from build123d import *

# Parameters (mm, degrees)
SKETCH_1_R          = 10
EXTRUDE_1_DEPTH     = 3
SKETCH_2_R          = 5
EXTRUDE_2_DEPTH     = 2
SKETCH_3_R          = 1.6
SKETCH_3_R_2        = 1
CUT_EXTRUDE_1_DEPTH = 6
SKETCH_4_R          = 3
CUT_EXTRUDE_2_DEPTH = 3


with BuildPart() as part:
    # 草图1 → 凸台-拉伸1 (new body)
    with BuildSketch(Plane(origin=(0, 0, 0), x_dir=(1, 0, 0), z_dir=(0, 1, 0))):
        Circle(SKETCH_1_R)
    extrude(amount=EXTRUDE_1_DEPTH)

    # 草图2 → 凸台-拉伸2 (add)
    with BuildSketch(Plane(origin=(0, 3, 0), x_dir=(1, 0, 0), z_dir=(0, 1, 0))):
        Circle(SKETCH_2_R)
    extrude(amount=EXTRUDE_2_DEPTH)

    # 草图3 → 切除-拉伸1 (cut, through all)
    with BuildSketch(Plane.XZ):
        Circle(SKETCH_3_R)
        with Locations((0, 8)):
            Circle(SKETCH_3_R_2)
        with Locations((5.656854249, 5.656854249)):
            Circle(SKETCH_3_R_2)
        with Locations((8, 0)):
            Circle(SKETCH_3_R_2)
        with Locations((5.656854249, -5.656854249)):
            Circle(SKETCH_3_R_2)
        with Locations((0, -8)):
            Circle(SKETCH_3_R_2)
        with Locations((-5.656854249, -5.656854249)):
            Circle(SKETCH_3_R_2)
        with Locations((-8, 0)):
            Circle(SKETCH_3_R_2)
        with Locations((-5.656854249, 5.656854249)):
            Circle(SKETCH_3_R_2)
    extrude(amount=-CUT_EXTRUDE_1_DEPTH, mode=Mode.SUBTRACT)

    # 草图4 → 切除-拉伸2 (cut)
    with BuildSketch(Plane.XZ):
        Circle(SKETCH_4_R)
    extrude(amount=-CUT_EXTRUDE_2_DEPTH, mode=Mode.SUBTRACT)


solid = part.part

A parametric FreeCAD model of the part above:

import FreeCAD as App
import Part
import Sketcher

V = App.Vector

doc = App.newDocument("Part")
body = doc.addObject("PartDesign::Body", "Body")

sketch1 = doc.addObject("Sketcher::SketchObject", "Sketch")
body.addObject(sketch1)
sketch1.AttachmentSupport = (doc.XZ_Plane, [""])
sketch1.MapMode = "FlatFace"
sketch1.addGeometry(Part.Circle(V(0, 0, 0), V(0, 0, 1), 10), False)
sketch1.addConstraint([
    Sketcher.Constraint("Coincident", 0, 3, -1, 1),
    Sketcher.Constraint("Diameter", 0, 20.0),
])
pad1 = doc.addObject("PartDesign::Pad", "Pad")
body.addObject(pad1)
pad1.Profile = sketch1
pad1.Length = 3
pad1.Reversed = True

sketch2 = doc.addObject("Sketcher::SketchObject", "Sketch001")
body.addObject(sketch2)
sketch2.AttachmentSupport = (doc.XZ_Plane, [""])
sketch2.MapMode = "FlatFace"
sketch2.AttachmentOffset = App.Placement(V(0, 0, -3), App.Rotation())
sketch2.addGeometry(Part.Circle(V(0, 0, 0), V(0, 0, 1), 5), False)
sketch2.addConstraint([
    Sketcher.Constraint("Coincident", 0, 3, -1, 1),
    Sketcher.Constraint("Diameter", 0, 10.0),
])
pad2 = doc.addObject("PartDesign::Pad", "Pad001")
body.addObject(pad2)
pad2.Profile = sketch2
pad2.Length = 2
pad2.Reversed = True

sketch3 = doc.addObject("Sketcher::SketchObject", "Sketch002")
body.addObject(sketch3)
sketch3.AttachmentSupport = (doc.XZ_Plane, [""])
sketch3.MapMode = "FlatFace"
sketch3.addGeometry([
    Part.Circle(V(0, 0, 0), V(0, 0, 1), 1.6),
    Part.Circle(V(0, 8, 0), V(0, 0, 1), 1),
    Part.Circle(V(5.7, 5.7, 0), V(0, 0, 1), 1),
    Part.Circle(V(8, 0, 0), V(0, 0, 1), 1),
    Part.Circle(V(5.7, -5.7, 0), V(0, 0, 1), 1),
    Part.Circle(V(0, -8, 0), V(0, 0, 1), 1),
    Part.Circle(V(-5.7, -5.7, 0), V(0, 0, 1), 1),
    Part.Circle(V(-8, 0, 0), V(0, 0, 1), 1),
    Part.Circle(V(-5.7, 5.7, 0), V(0, 0, 1), 1),
], False)
sketch3.addConstraint([
    Sketcher.Constraint("Coincident", 0, 3, -1, 1),
    Sketcher.Constraint("Equal", 1, 2),
    Sketcher.Constraint("Equal", 2, 3),
    Sketcher.Constraint("Equal", 3, 4),
    Sketcher.Constraint("Equal", 4, 5),
    Sketcher.Constraint("Equal", 5, 6),
    Sketcher.Constraint("Equal", 6, 7),
    Sketcher.Constraint("Equal", 7, 8),
    Sketcher.Constraint("Symmetric", 1, 3, 5, 3, -1, 1),
    Sketcher.Constraint("Symmetric", 2, 3, 6, 3, -1, 1),
    Sketcher.Constraint("Symmetric", 3, 3, 7, 3, -1, 1),
    Sketcher.Constraint("Symmetric", 4, 3, 8, 3, -1, 1),
    Sketcher.Constraint("Symmetric", 4, 3, 6, 3, -2),
    Sketcher.Constraint("PointOnObject", 1, 3, -2),
    Sketcher.Constraint("PointOnObject", 3, 3, -1),
    Sketcher.Constraint("Diameter", 1, 2.0),
    Sketcher.Constraint("Diameter", 0, 3.2),
    Sketcher.Constraint("DistanceY", -1, 1, 1, 3, 8.0),
    Sketcher.Constraint("DistanceX", -1, 1, 3, 3, 8.0),
    Sketcher.Constraint("DistanceY", 4, 3, 2, 3, 11.313708),
    Sketcher.Constraint("DistanceX", 6, 3, 4, 3, 11.313708),
])
pocket1 = doc.addObject("PartDesign::Pocket", "Pocket")
body.addObject(pocket1)
pocket1.Profile = sketch3
pocket1.Type = "ThroughAll"

sketch4 = doc.addObject("Sketcher::SketchObject", "Sketch003")
body.addObject(sketch4)
sketch4.AttachmentSupport = (doc.XZ_Plane, [""])
sketch4.MapMode = "FlatFace"
sketch4.addGeometry(Part.Circle(V(0, 0, 0), V(0, 0, 1), 3), False)
sketch4.addConstraint([
    Sketcher.Constraint("Coincident", 0, 3, -1, 1),
    Sketcher.Constraint("Diameter", 0, 6.0),
])
pocket2 = doc.addObject("PartDesign::Pocket", "Pocket001")
body.addObject(pocket2)
pocket2.Profile = sketch4
pocket2.Length = 3

doc.recompute()
